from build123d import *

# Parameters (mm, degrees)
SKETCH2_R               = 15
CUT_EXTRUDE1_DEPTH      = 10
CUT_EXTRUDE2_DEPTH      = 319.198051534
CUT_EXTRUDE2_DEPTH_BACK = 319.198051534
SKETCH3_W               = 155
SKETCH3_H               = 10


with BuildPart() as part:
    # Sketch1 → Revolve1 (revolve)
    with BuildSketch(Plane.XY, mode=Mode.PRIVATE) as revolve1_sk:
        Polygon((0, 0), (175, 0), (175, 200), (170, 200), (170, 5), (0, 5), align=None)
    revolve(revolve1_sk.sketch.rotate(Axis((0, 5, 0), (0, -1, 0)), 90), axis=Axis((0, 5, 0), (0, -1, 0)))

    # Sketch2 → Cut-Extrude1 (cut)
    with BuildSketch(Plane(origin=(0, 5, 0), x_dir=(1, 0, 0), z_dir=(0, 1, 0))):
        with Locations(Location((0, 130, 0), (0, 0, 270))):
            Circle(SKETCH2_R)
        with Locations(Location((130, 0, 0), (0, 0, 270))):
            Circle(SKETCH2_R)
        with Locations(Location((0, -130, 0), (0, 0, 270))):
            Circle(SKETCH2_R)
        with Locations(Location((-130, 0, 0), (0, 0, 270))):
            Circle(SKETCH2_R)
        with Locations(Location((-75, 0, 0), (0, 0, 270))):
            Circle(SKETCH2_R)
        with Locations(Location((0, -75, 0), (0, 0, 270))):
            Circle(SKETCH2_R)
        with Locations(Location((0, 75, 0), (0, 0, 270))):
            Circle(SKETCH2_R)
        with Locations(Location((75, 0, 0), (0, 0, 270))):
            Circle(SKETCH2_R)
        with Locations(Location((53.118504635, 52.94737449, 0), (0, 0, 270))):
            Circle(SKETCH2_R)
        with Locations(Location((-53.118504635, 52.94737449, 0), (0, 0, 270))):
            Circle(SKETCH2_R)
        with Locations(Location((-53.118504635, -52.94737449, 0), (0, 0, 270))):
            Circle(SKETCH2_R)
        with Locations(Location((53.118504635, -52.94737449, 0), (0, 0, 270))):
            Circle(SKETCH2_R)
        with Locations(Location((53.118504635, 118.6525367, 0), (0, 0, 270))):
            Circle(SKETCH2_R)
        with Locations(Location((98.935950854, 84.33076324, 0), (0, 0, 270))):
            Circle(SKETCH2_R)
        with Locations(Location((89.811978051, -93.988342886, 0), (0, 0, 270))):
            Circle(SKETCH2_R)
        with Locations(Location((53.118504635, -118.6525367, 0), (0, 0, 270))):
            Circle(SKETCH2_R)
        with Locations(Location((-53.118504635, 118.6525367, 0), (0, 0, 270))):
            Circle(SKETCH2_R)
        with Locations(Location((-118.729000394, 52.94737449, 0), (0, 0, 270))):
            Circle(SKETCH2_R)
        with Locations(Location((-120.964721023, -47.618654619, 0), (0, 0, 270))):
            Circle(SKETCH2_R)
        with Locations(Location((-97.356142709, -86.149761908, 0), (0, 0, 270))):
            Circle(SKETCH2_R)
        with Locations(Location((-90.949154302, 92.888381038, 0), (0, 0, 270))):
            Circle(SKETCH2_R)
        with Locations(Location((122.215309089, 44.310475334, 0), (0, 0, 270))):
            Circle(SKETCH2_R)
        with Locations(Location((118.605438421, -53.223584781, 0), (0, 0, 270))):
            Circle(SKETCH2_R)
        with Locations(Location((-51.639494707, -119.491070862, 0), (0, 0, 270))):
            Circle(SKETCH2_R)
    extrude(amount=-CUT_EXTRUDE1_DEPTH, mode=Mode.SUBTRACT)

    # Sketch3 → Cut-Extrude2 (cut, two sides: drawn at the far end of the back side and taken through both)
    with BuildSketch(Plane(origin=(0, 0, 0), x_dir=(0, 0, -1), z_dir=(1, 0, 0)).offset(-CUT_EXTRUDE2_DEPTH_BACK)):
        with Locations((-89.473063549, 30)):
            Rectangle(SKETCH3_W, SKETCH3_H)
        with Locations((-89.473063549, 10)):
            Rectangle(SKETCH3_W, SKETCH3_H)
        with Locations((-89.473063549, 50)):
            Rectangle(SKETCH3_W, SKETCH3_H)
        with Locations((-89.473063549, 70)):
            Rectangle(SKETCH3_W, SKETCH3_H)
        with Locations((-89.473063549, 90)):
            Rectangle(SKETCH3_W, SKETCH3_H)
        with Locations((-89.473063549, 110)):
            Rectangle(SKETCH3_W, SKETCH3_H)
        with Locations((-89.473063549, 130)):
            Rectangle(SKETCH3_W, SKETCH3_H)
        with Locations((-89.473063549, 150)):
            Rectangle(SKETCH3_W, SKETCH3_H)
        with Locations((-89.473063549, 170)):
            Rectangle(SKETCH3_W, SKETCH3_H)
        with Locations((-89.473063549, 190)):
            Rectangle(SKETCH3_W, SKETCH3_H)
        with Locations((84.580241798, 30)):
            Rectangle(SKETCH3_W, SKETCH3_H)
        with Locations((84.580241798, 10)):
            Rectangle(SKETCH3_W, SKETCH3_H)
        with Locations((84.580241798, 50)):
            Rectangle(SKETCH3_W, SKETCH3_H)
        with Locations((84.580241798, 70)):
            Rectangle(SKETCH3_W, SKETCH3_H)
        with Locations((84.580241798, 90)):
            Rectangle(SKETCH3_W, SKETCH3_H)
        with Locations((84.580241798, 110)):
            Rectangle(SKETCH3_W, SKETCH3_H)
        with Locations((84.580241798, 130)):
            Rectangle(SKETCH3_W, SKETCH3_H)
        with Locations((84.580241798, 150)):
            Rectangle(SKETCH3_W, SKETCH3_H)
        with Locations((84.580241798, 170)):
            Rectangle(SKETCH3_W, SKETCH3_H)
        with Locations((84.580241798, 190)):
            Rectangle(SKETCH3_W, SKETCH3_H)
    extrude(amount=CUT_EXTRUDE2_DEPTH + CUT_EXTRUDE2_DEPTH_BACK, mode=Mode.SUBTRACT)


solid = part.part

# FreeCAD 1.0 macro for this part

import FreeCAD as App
import Part
import Sketcher

V = App.Vector

doc = App.newDocument("Part")
body = doc.addObject("PartDesign::Body", "Body")

sketch1 = doc.addObject("Sketcher::SketchObject", "Sketch")
body.addObject(sketch1)
sketch1.AttachmentSupport = (doc.XY_Plane, [""])
sketch1.MapMode = "FlatFace"
sketch1.addGeometry([
    Part.LineSegment(V(0, 0, 0), V(175, 0, 0)),
    Part.LineSegment(V(175, 0, 0), V(175, 200, 0)),
    Part.LineSegment(V(175, 200, 0), V(170, 200, 0)),
    Part.LineSegment(V(170, 200, 0), V(170, 5, 0)),
    Part.LineSegment(V(170, 5, 0), V(0, 5, 0)),
    Part.LineSegment(V(0, 5, 0), V(0, 0, 0)),
], False)
sketch1.addConstraint([
    Sketcher.Constraint("Coincident", 0, 2, 1, 1),
    Sketcher.Constraint("Coincident", 1, 2, 2, 1),
    Sketcher.Constraint("Coincident", 2, 2, 3, 1),
    Sketcher.Constraint("Coincident", 3, 2, 4, 1),
    Sketcher.Constraint("Coincident", 4, 2, 5, 1),
    Sketcher.Constraint("Coincident", 5, 2, 0, 1),
    Sketcher.Constraint("Horizontal", 0),
    Sketcher.Constraint("Vertical", 1),
    Sketcher.Constraint("Horizontal", 2),
    Sketcher.Constraint("Vertical", 3),
    Sketcher.Constraint("Horizontal", 4),
    Sketcher.Constraint("Vertical", 5),
    Sketcher.Constraint("Coincident", 5, 2, -1, 1),
    Sketcher.Constraint("Equal", 2, 5),
    Sketcher.Constraint("DistanceX", 0, 1, 0, 2, 175.0),
    Sketcher.Constraint("DistanceX", 2, 2, 2, 1, 5.0),
    Sketcher.Constraint("DistanceY", 1, 1, 1, 2, 200.0),
])
revolution = doc.addObject("PartDesign::Revolution", "Revolution")
body.addObject(revolution)
revolution.Profile = sketch1
revolution.ReferenceAxis = (sketch1, ["V_Axis"])
revolution.Angle = 360

sketch2 = doc.addObject("Sketcher::SketchObject", "Sketch001")
body.addObject(sketch2)
sketch2.AttachmentSupport = (doc.XZ_Plane, [""])
sketch2.MapMode = "FlatFace"
sketch2.AttachmentOffset = App.Placement(V(0, 0, -5), App.Rotation())
sketch2.addGeometry([
    Part.Circle(V(0, -130, 0), V(0, 0, 1), 15),
    Part.Circle(V(130, 0, 0), V(0, 0, 1), 15),
    Part.Circle(V(0, 130, 0), V(0, 0, 1), 15),
    Part.Circle(V(-130, 0, 0), V(0, 0, 1), 15),
    Part.Circle(V(-75, 0, 0), V(0, 0, 1), 15),
    Part.Circle(V(0, 75, 0), V(0, 0, 1), 15),
    Part.Circle(V(0, -75, 0), V(0, 0, 1), 15),
    Part.Circle(V(75, 0, 0), V(0, 0, 1), 15),
    Part.Circle(V(53.118505, -52.947374, 0), V(0, 0, 1), 15),
    Part.Circle(V(-53.118505, -52.947374, 0), V(0, 0, 1), 15),
    Part.Circle(V(-53.118505, 52.947374, 0), V(0, 0, 1), 15),
    Part.Circle(V(53.118505, 52.947374, 0), V(0, 0, 1), 15),
    Part.Circle(V(53.118505, -118.652537, 0), V(0, 0, 1), 15),
    Part.Circle(V(98.935951, -84.330763, 0), V(0, 0, 1), 15),
    Part.Circle(V(89.811978, 93.988343, 0), V(0, 0, 1), 15),
    Part.Circle(V(53.118505, 118.652537, 0), V(0, 0, 1), 15),
    Part.Circle(V(-53.118505, -118.652537, 0), V(0, 0, 1), 15),
    Part.Circle(V(-118.729, -52.947374, 0), V(0, 0, 1), 15),
    Part.Circle(V(-120.964721, 47.618655, 0), V(0, 0, 1), 15),
    Part.Circle(V(-97.356143, 86.149762, 0), V(0, 0, 1), 15),
    Part.Circle(V(-90.949154, -92.888381, 0), V(0, 0, 1), 15),
    Part.Circle(V(122.215309, -44.310475, 0), V(0, 0, 1), 15),
    Part.Circle(V(118.605438, 53.223585, 0), V(0, 0, 1), 15),
    Part.Circle(V(-51.639495, 119.491071, 0), V(0, 0, 1), 15),
], False)
sketch2.addConstraint([
    Sketcher.Constraint("Equal", 0, 1),
    Sketcher.Constraint("Equal", 1, 2),
    Sketcher.Constraint("Equal", 2, 3),
    Sketcher.Constraint("Equal", 3, 4),
    Sketcher.Constraint("Equal", 4, 5),
    Sketcher.Constraint("Equal", 5, 6),
    Sketcher.Constraint("Equal", 6, 7),
    Sketcher.Constraint("Equal", 7, 8),
    Sketcher.Constraint("Equal", 8, 9),
    Sketcher.Constraint("Equal", 9, 10),
    Sketcher.Constraint("Equal", 10, 11),
    Sketcher.Constraint("Equal", 11, 12),
    Sketcher.Constraint("Equal", 12, 13),
    Sketcher.Constraint("Equal", 13, 14),
    Sketcher.Constraint("Equal", 14, 15),
    Sketcher.Constraint("Equal", 15, 16),
    Sketcher.Constraint("Equal", 16, 17),
    Sketcher.Constraint("Equal", 17, 18),
    Sketcher.Constraint("Equal", 18, 19),
    Sketcher.Constraint("Equal", 19, 20),
    Sketcher.Constraint("Equal", 20, 21),
    Sketcher.Constraint("Equal", 21, 22),
    Sketcher.Constraint("Equal", 22, 23),
    Sketcher.Constraint("Symmetric", 0, 3, 2, 3, -1, 1),
    Sketcher.Constraint("Symmetric", 1, 3, 3, 3, -1, 1),
    Sketcher.Constraint("Symmetric", 5, 3, 6, 3, -1, 1),
    Sketcher.Constraint("Symmetric", 4, 3, 7, 3, -1, 1),
    Sketcher.Constraint("Symmetric", 8, 3, 10, 3, -1, 1),
    Sketcher.Constraint("Symmetric", 9, 3, 11, 3, -1, 1),
    Sketcher.Constraint("Symmetric", 15, 3, 16, 3, -1, 1),
    Sketcher.Constraint("Symmetric", 8, 3, 9, 3, -2),
    Sketcher.Constraint("Symmetric", 12, 3, 16, 3, -2),
    Sketcher.Constraint("PointOnObject", 0, 3, -2),
    Sketcher.Constraint("PointOnObject", 1, 3, -1),
    Sketcher.Constraint("PointOnObject", 4, 3, -1),
    Sketcher.Constraint("PointOnObject", 5, 3, -2),
    Sketcher.Constraint("Horizontal", 9, 3, 17, 3),
    Sketcher.Constraint("Vertical", 11, 3, 12, 3),
    Sketcher.Constraint("Diameter", 0, 30.0),
    Sketcher.Constraint("DistanceY", 0, 3, -1, 1, 130.0),
    Sketcher.Constraint("DistanceX", -1, 1, 1, 3, 130.0),
    Sketcher.Constraint("DistanceX", 4, 3, -1, 1, 75.0),
    Sketcher.Constraint("DistanceY", -1, 1, 5, 3, 75.0),
    Sketcher.Constraint("DistanceX", 17, 3, -1, 1, 118.729),
    Sketcher.Constraint("DistanceY", 8, 3, 21, 3, 8.636899),
    Sketcher.Constraint("DistanceX", -1, 1, 13, 3, 98.935951),
    Sketcher.Constraint("DistanceX", -1, 1, 14, 3, 89.811978),
    Sketcher.Constraint("DistanceX", 18, 3, -1, 1, 120.964721),
    Sketcher.Constraint("DistanceY", -1, 1, 19, 3, 86.149762),
    Sketcher.Constraint("DistanceY", 20, 3, -1, 1, 92.888381),
    Sketcher.Constraint("DistanceX", -1, 1, 21, 3, 122.215309),
    Sketcher.Constraint("DistanceX", -1, 1, 22, 3, 118.605438),
    Sketcher.Constraint("DistanceY", -1, 1, 23, 3, 119.491071),
    Sketcher.Constraint("DistanceX", 9, 3, 8, 3, 106.237009),
    Sketcher.Constraint("DistanceY", 9, 3, 10, 3, 105.894749),
    Sketcher.Constraint("DistanceY", 13, 3, 8, 3, 31.383389),
    Sketcher.Constraint("DistanceY", 11, 3, 14, 3, 41.040968),
    Sketcher.Constraint("DistanceY", 18, 3, 10, 3, 5.32872),
    Sketcher.Constraint("DistanceX", 18, 3, 19, 3, 23.608578),
    Sketcher.Constraint("DistanceX", 20, 3, 16, 3, 37.83065),
    Sketcher.Constraint("DistanceY", 12, 3, 21, 3, 74.342061),
    Sketcher.Constraint("DistanceY", 22, 3, 14, 3, 40.764758),
    Sketcher.Constraint("DistanceX", 19, 3, 23, 3, 45.716648),
])
pocket1 = doc.addObject("PartDesign::Pocket", "Pocket")
body.addObject(pocket1)
pocket1.Profile = sketch2
pocket1.Length = 10
pocket1.Reversed = True

sketch3 = doc.addObject("Sketcher::SketchObject", "Sketch002")
body.addObject(sketch3)
sketch3.AttachmentSupport = (doc.YZ_Plane, [""])
sketch3.MapMode = "FlatFace"
sketch3.addGeometry([
    Part.LineSegment(V(35, 166.973064, 0), V(25, 166.973064, 0)),
    Part.LineSegment(V(25, 166.973064, 0), V(25, 11.973064, 0)),
    Part.LineSegment(V(25, 11.973064, 0), V(35, 11.973064, 0)),
    Part.LineSegment(V(35, 11.973064, 0), V(35, 166.973064, 0)),
    Part.LineSegment(V(15, 166.973064, 0), V(5, 166.973064, 0)),
    Part.LineSegment(V(5, 166.973064, 0), V(5, 11.973064, 0)),
    Part.LineSegment(V(5, 11.973064, 0), V(15, 11.973064, 0)),
    Part.LineSegment(V(15, 11.973064, 0), V(15, 166.973064, 0)),
    Part.LineSegment(V(55, 166.973064, 0), V(45, 166.973064, 0)),
    Part.LineSegment(V(45, 166.973064, 0), V(45, 11.973064, 0)),
    Part.LineSegment(V(45, 11.973064, 0), V(55, 11.973064, 0)),
    Part.LineSegment(V(55, 11.973064, 0), V(55, 166.973064, 0)),
    Part.LineSegment(V(75, 166.973064, 0), V(65, 166.973064, 0)),
    Part.LineSegment(V(65, 166.973064, 0), V(65, 11.973064, 0)),
    Part.LineSegment(V(65, 11.973064, 0), V(75, 11.973064, 0)),
    Part.LineSegment(V(75, 11.973064, 0), V(75, 166.973064, 0)),
    Part.LineSegment(V(95, 166.973064, 0), V(85, 166.973064, 0)),
    Part.LineSegment(V(85, 166.973064, 0), V(85, 11.973064, 0)),
    Part.LineSegment(V(85, 11.973064, 0), V(95, 11.973064, 0)),
    Part.LineSegment(V(95, 11.973064, 0), V(95, 166.973064, 0)),
    Part.LineSegment(V(115, 166.973064, 0), V(105, 166.973064, 0)),
    Part.LineSegment(V(105, 166.973064, 0), V(105, 11.973064, 0)),
    Part.LineSegment(V(105, 11.973064, 0), V(115, 11.973064, 0)),
    Part.LineSegment(V(115, 11.973064, 0), V(115, 166.973064, 0)),
    Part.LineSegment(V(135, 166.973064, 0), V(125, 166.973064, 0)),
    Part.LineSegment(V(125, 166.973064, 0), V(125, 11.973064, 0)),
    Part.LineSegment(V(125, 11.973064, 0), V(135, 11.973064, 0)),
    Part.LineSegment(V(135, 11.973064, 0), V(135, 166.973064, 0)),
    Part.LineSegment(V(155, 166.973064, 0), V(145, 166.973064, 0)),
    Part.LineSegment(V(145, 166.973064, 0), V(145, 11.973064, 0)),
    Part.LineSegment(V(145, 11.973064, 0), V(155, 11.973064, 0)),
    Part.LineSegment(V(155, 11.973064, 0), V(155, 166.973064, 0)),
    Part.LineSegment(V(175, 166.973064, 0), V(165, 166.973064, 0)),
    Part.LineSegment(V(165, 166.973064, 0), V(165, 11.973064, 0)),
    Part.LineSegment(V(165, 11.973064, 0), V(175, 11.973064, 0)),
    Part.LineSegment(V(175, 11.973064, 0), V(175, 166.973064, 0)),
    Part.LineSegment(V(195, 166.973064, 0), V(185, 166.973064, 0)),
    Part.LineSegment(V(185, 166.973064, 0), V(185, 11.973064, 0)),
    Part.LineSegment(V(185, 11.973064, 0), V(195, 11.973064, 0)),
    Part.LineSegment(V(195, 11.973064, 0), V(195, 166.973064, 0)),
    Part.LineSegment(V(35, -7.080242, 0), V(25, -7.080242, 0)),
    Part.LineSegment(V(25, -7.080242, 0), V(25, -162.080242, 0)),
    Part.LineSegment(V(25, -162.080242, 0), V(35, -162.080242, 0)),
    Part.LineSegment(V(35, -162.080242, 0), V(35, -7.080242, 0)),
    Part.LineSegment(V(15, -7.080242, 0), V(5, -7.080242, 0)),
    Part.LineSegment(V(5, -7.080242, 0), V(5, -162.080242, 0)),
    Part.LineSegment(V(5, -162.080242, 0), V(15, -162.080242, 0)),
    Part.LineSegment(V(15, -162.080242, 0), V(15, -7.080242, 0)),
    Part.LineSegment(V(55, -7.080242, 0), V(45, -7.080242, 0)),
    Part.LineSegment(V(45, -7.080242, 0), V(45, -162.080242, 0)),
    Part.LineSegment(V(45, -162.080242, 0), V(55, -162.080242, 0)),
    Part.LineSegment(V(55, -162.080242, 0), V(55, -7.080242, 0)),
    Part.LineSegment(V(75, -7.080242, 0), V(65, -7.080242, 0)),
    Part.LineSegment(V(65, -7.080242, 0), V(65, -162.080242, 0)),
    Part.LineSegment(V(65, -162.080242, 0), V(75, -162.080242, 0)),
    Part.LineSegment(V(75, -162.080242, 0), V(75, -7.080242, 0)),
    Part.LineSegment(V(95, -7.080242, 0), V(85, -7.080242, 0)),
    Part.LineSegment(V(85, -7.080242, 0), V(85, -162.080242, 0)),
    Part.LineSegment(V(85, -162.080242, 0), V(95, -162.080242, 0)),
    Part.LineSegment(V(95, -162.080242, 0), V(95, -7.080242, 0)),
    Part.LineSegment(V(115, -7.080242, 0), V(105, -7.080242, 0)),
    Part.LineSegment(V(105, -7.080242, 0), V(105, -162.080242, 0)),
    Part.LineSegment(V(105, -162.080242, 0), V(115, -162.080242, 0)),
    Part.LineSegment(V(115, -162.080242, 0), V(115, -7.080242, 0)),
    Part.LineSegment(V(135, -7.080242, 0), V(125, -7.080242, 0)),
    Part.LineSegment(V(125, -7.080242, 0), V(125, -162.080242, 0)),
    Part.LineSegment(V(125, -162.080242, 0), V(135, -162.080242, 0)),
    Part.LineSegment(V(135, -162.080242, 0), V(135, -7.080242, 0)),
    Part.LineSegment(V(155, -7.080242, 0), V(145, -7.080242, 0)),
    Part.LineSegment(V(145, -7.080242, 0), V(145, -162.080242, 0)),
    Part.LineSegment(V(145, -162.080242, 0), V(155, -162.080242, 0)),
    Part.LineSegment(V(155, -162.080242, 0), V(155, -7.080242, 0)),
    Part.LineSegment(V(175, -7.080242, 0), V(165, -7.080242, 0)),
    Part.LineSegment(V(165, -7.080242, 0), V(165, -162.080242, 0)),
    Part.LineSegment(V(165, -162.080242, 0), V(175, -162.080242, 0)),
    Part.LineSegment(V(175, -162.080242, 0), V(175, -7.080242, 0)),
    Part.LineSegment(V(195, -7.080242, 0), V(185, -7.080242, 0)),
    Part.LineSegment(V(185, -7.080242, 0), V(185, -162.080242, 0)),
    Part.LineSegment(V(185, -162.080242, 0), V(195, -162.080242, 0)),
    Part.LineSegment(V(195, -162.080242, 0), V(195, -7.080242, 0)),
], False)
sketch3.addConstraint([
    Sketcher.Constraint("Coincident", 0, 2, 1, 1),
    Sketcher.Constraint("Coincident", 1, 2, 2, 1),
    Sketcher.Constraint("Coincident", 2, 2, 3, 1),
    Sketcher.Constraint("Coincident", 3, 2, 0, 1),
    Sketcher.Constraint("Coincident", 4, 2, 5, 1),
    Sketcher.Constraint("Coincident", 5, 2, 6, 1),
    Sketcher.Constraint("Coincident", 6, 2, 7, 1),
    Sketcher.Constraint("Coincident", 7, 2, 4, 1),
    Sketcher.Constraint("Coincident", 8, 2, 9, 1),
    Sketcher.Constraint("Coincident", 9, 2, 10, 1),
    Sketcher.Constraint("Coincident", 10, 2, 11, 1),
    Sketcher.Constraint("Coincident", 11, 2, 8, 1),
    Sketcher.Constraint("Coincident", 12, 2, 13, 1),
    Sketcher.Constraint("Coincident", 13, 2, 14, 1),
    Sketcher.Constraint("Coincident", 14, 2, 15, 1),
    Sketcher.Constraint("Coincident", 15, 2, 12, 1),
    Sketcher.Constraint("Coincident", 16, 2, 17, 1),
    Sketcher.Constraint("Coincident", 17, 2, 18, 1),
    Sketcher.Constraint("Coincident", 18, 2, 19, 1),
    Sketcher.Constraint("Coincident", 19, 2, 16, 1),
    Sketcher.Constraint("Coincident", 20, 2, 21, 1),
    Sketcher.Constraint("Coincident", 21, 2, 22, 1),
    Sketcher.Constraint("Coincident", 22, 2, 23, 1),
    Sketcher.Constraint("Coincident", 23, 2, 20, 1),
    Sketcher.Constraint("Coincident", 24, 2, 25, 1),
    Sketcher.Constraint("Coincident", 25, 2, 26, 1),
    Sketcher.Constraint("Coincident", 26, 2, 27, 1),
    Sketcher.Constraint("Coincident", 27, 2, 24, 1),
    Sketcher.Constraint("Coincident", 28, 2, 29, 1),
    Sketcher.Constraint("Coincident", 29, 2, 30, 1),
    Sketcher.Constraint("Coincident", 30, 2, 31, 1),
    Sketcher.Constraint("Coincident", 31, 2, 28, 1),
    Sketcher.Constraint("Coincident", 32, 2, 33, 1),
    Sketcher.Constraint("Coincident", 33, 2, 34, 1),
    Sketcher.Constraint("Coincident", 34, 2, 35, 1),
    Sketcher.Constraint("Coincident", 35, 2, 32, 1),
    Sketcher.Constraint("Coincident", 36, 2, 37, 1),
    Sketcher.Constraint("Coincident", 37, 2, 38, 1),
    Sketcher.Constraint("Coincident", 38, 2, 39, 1),
    Sketcher.Constraint("Coincident", 39, 2, 36, 1),
    Sketcher.Constraint("Coincident", 40, 2, 41, 1),
    Sketcher.Constraint("Coincident", 41, 2, 42, 1),
    Sketcher.Constraint("Coincident", 42, 2, 43, 1),
    Sketcher.Constraint("Coincident", 43, 2, 40, 1),
    Sketcher.Constraint("Coincident", 44, 2, 45, 1),
    Sketcher.Constraint("Coincident", 45, 2, 46, 1),
    Sketcher.Constraint("Coincident", 46, 2, 47, 1),
    Sketcher.Constraint("Coincident", 47, 2, 44, 1),
    Sketcher.Constraint("Coincident", 48, 2, 49, 1),
    Sketcher.Constraint("Coincident", 49, 2, 50, 1),
    Sketcher.Constraint("Coincident", 50, 2, 51, 1),
    Sketcher.Constraint("Coincident", 51, 2, 48, 1),
    Sketcher.Constraint("Coincident", 52, 2, 53, 1),
    Sketcher.Constraint("Coincident", 53, 2, 54, 1),
    Sketcher.Constraint("Coincident", 54, 2, 55, 1),
    Sketcher.Constraint("Coincident", 55, 2, 52, 1),
    Sketcher.Constraint("Coincident", 56, 2, 57, 1),
    Sketcher.Constraint("Coincident", 57, 2, 58, 1),
    Sketcher.Constraint("Coincident", 58, 2, 59, 1),
    Sketcher.Constraint("Coincident", 59, 2, 56, 1),
    Sketcher.Constraint("Coincident", 60, 2, 61, 1),
    Sketcher.Constraint("Coincident", 61, 2, 62, 1),
    Sketcher.Constraint("Coincident", 62, 2, 63, 1),
    Sketcher.Constraint("Coincident", 63, 2, 60, 1),
    Sketcher.Constraint("Coincident", 64, 2, 65, 1),
    Sketcher.Constraint("Coincident", 65, 2, 66, 1),
    Sketcher.Constraint("Coincident", 66, 2, 67, 1),
    Sketcher.Constraint("Coincident", 67, 2, 64, 1),
    Sketcher.Constraint("Coincident", 68, 2, 69, 1),
    Sketcher.Constraint("Coincident", 69, 2, 70, 1),
    Sketcher.Constraint("Coincident", 70, 2, 71, 1),
    Sketcher.Constraint("Coincident", 71, 2, 68, 1),
    Sketcher.Constraint("Coincident", 72, 2, 73, 1),
    Sketcher.Constraint("Coincident", 73, 2, 74, 1),
    Sketcher.Constraint("Coincident", 74, 2, 75, 1),
    Sketcher.Constraint("Coincident", 75, 2, 72, 1),
    Sketcher.Constraint("Coincident", 76, 2, 77, 1),
    Sketcher.Constraint("Coincident", 77, 2, 78, 1),
    Sketcher.Constraint("Coincident", 78, 2, 79, 1),
    Sketcher.Constraint("Coincident", 79, 2, 76, 1),
    Sketcher.Constraint("Horizontal", 0),
    Sketcher.Constraint("Vertical", 1),
    Sketcher.Constraint("Horizontal", 2),
    Sketcher.Constraint("Vertical", 3),
    Sketcher.Constraint("Horizontal", 4),
    Sketcher.Constraint("Vertical", 5),
    Sketcher.Constraint("Horizontal", 6),
    Sketcher.Constraint("Vertical", 7),
    Sketcher.Constraint("Horizontal", 8),
    Sketcher.Constraint("Vertical", 9),
    Sketcher.Constraint("Horizontal", 10),
    Sketcher.Constraint("Vertical", 11),
    Sketcher.Constraint("Horizontal", 12),
    Sketcher.Constraint("Vertical", 13),
    Sketcher.Constraint("Horizontal", 14),
    Sketcher.Constraint("Vertical", 15),
    Sketcher.Constraint("Horizontal", 16),
    Sketcher.Constraint("Vertical", 17),
    Sketcher.Constraint("Horizontal", 18),
    Sketcher.Constraint("Vertical", 19),
    Sketcher.Constraint("Horizontal", 20),
    Sketcher.Constraint("Vertical", 21),
    Sketcher.Constraint("Horizontal", 22),
    Sketcher.Constraint("Vertical", 23),
    Sketcher.Constraint("Horizontal", 24),
    Sketcher.Constraint("Vertical", 25),
    Sketcher.Constraint("Horizontal", 26),
    Sketcher.Constraint("Vertical", 27),
    Sketcher.Constraint("Horizontal", 28),
    Sketcher.Constraint("Vertical", 29),
    Sketcher.Constraint("Horizontal", 30),
    Sketcher.Constraint("Vertical", 31),
    Sketcher.Constraint("Horizontal", 32),
    Sketcher.Constraint("Vertical", 33),
    Sketcher.Constraint("Horizontal", 34),
    Sketcher.Constraint("Vertical", 35),
    Sketcher.Constraint("Horizontal", 36),
    Sketcher.Constraint("Vertical", 37),
    Sketcher.Constraint("Horizontal", 38),
    Sketcher.Constraint("Vertical", 39),
    Sketcher.Constraint("Horizontal", 40),
    Sketcher.Constraint("Vertical", 41),
    Sketcher.Constraint("Horizontal", 42),
    Sketcher.Constraint("Vertical", 43),
    Sketcher.Constraint("Horizontal", 44),
    Sketcher.Constraint("Vertical", 45),
    Sketcher.Constraint("Horizontal", 46),
    Sketcher.Constraint("Vertical", 47),
    Sketcher.Constraint("Horizontal", 48),
    Sketcher.Constraint("Vertical", 49),
    Sketcher.Constraint("Horizontal", 50),
    Sketcher.Constraint("Vertical", 51),
    Sketcher.Constraint("Horizontal", 52),
    Sketcher.Constraint("Vertical", 53),
    Sketcher.Constraint("Horizontal", 54),
    Sketcher.Constraint("Vertical", 55),
    Sketcher.Constraint("Horizontal", 56),
    Sketcher.Constraint("Vertical", 57),
    Sketcher.Constraint("Horizontal", 58),
    Sketcher.Constraint("Vertical", 59),
    Sketcher.Constraint("Horizontal", 60),
    Sketcher.Constraint("Vertical", 61),
    Sketcher.Constraint("Horizontal", 62),
    Sketcher.Constraint("Vertical", 63),
    Sketcher.Constraint("Horizontal", 64),
    Sketcher.Constraint("Vertical", 65),
    Sketcher.Constraint("Horizontal", 66),
    Sketcher.Constraint("Vertical", 67),
    Sketcher.Constraint("Horizontal", 68),
    Sketcher.Constraint("Vertical", 69),
    Sketcher.Constraint("Horizontal", 70),
    Sketcher.Constraint("Vertical", 71),
    Sketcher.Constraint("Horizontal", 72),
    Sketcher.Constraint("Vertical", 73),
    Sketcher.Constraint("Horizontal", 74),
    Sketcher.Constraint("Vertical", 75),
    Sketcher.Constraint("Horizontal", 76),
    Sketcher.Constraint("Vertical", 77),
    Sketcher.Constraint("Horizontal", 78),
    Sketcher.Constraint("Vertical", 79),
    Sketcher.Constraint("Horizontal", 3, 2, 4, 2),
    Sketcher.Constraint("Horizontal", 2, 2, 5, 2),
    Sketcher.Constraint("Horizontal", 7, 2, 8, 2),
    Sketcher.Constraint("Horizontal", 6, 2, 9, 2),
    Sketcher.Constraint("Horizontal", 11, 2, 12, 2),
    Sketcher.Constraint("Horizontal", 10, 2, 13, 2),
    Sketcher.Constraint("Horizontal", 15, 2, 16, 2),
    Sketcher.Constraint("Horizontal", 14, 2, 17, 2),
    Sketcher.Constraint("Horizontal", 19, 2, 20, 2),
    Sketcher.Constraint("Horizontal", 18, 2, 21, 2),
    Sketcher.Constraint("Horizontal", 23, 2, 24, 2),
    Sketcher.Constraint("Horizontal", 22, 2, 25, 2),
    Sketcher.Constraint("Horizontal", 27, 2, 28, 2),
    Sketcher.Constraint("Horizontal", 26, 2, 29, 2),
    Sketcher.Constraint("Horizontal", 31, 2, 32, 2),
    Sketcher.Constraint("Horizontal", 30, 2, 33, 2),
    Sketcher.Constraint("Horizontal", 35, 2, 36, 2),
    Sketcher.Constraint("Horizontal", 34, 2, 37, 2),
    Sketcher.Constraint("Horizontal", 43, 2, 44, 2),
    Sketcher.Constraint("Horizontal", 42, 2, 45, 2),
    Sketcher.Constraint("Horizontal", 47, 2, 48, 2),
    Sketcher.Constraint("Horizontal", 46, 2, 49, 2),
    Sketcher.Constraint("Horizontal", 51, 2, 52, 2),
    Sketcher.Constraint("Horizontal", 50, 2, 53, 2),
    Sketcher.Constraint("Horizontal", 55, 2, 56, 2),
    Sketcher.Constraint("Horizontal", 54, 2, 57, 2),
    Sketcher.Constraint("Horizontal", 59, 2, 60, 2),
    Sketcher.Constraint("Horizontal", 58, 2, 61, 2),
    Sketcher.Constraint("Horizontal", 63, 2, 64, 2),
    Sketcher.Constraint("Horizontal", 62, 2, 65, 2),
    Sketcher.Constraint("Horizontal", 67, 2, 68, 2),
    Sketcher.Constraint("Horizontal", 66, 2, 69, 2),
    Sketcher.Constraint("Horizontal", 71, 2, 72, 2),
    Sketcher.Constraint("Horizontal", 70, 2, 73, 2),
    Sketcher.Constraint("Horizontal", 75, 2, 76, 2),
    Sketcher.Constraint("Horizontal", 74, 2, 77, 2),
    Sketcher.Constraint("Vertical", 1, 2, 40, 2),
    Sketcher.Constraint("Vertical", 3, 2, 42, 2),
    Sketcher.Constraint("Vertical", 5, 2, 44, 2),
    Sketcher.Constraint("Vertical", 7, 2, 46, 2),
    Sketcher.Constraint("Vertical", 9, 2, 48, 2),
    Sketcher.Constraint("Vertical", 11, 2, 50, 2),
    Sketcher.Constraint("Vertical", 13, 2, 52, 2),
    Sketcher.Constraint("Vertical", 15, 2, 54, 2),
    Sketcher.Constraint("Vertical", 17, 2, 56, 2),
    Sketcher.Constraint("Vertical", 19, 2, 58, 2),
    Sketcher.Constraint("Vertical", 21, 2, 60, 2),
    Sketcher.Constraint("Vertical", 23, 2, 62, 2),
    Sketcher.Constraint("Vertical", 25, 2, 64, 2),
    Sketcher.Constraint("Vertical", 27, 2, 66, 2),
    Sketcher.Constraint("Vertical", 29, 2, 68, 2),
    Sketcher.Constraint("Vertical", 31, 2, 70, 2),
    Sketcher.Constraint("Vertical", 33, 2, 72, 2),
    Sketcher.Constraint("Vertical", 35, 2, 74, 2),
    Sketcher.Constraint("Vertical", 37, 2, 76, 2),
    Sketcher.Constraint("Vertical", 39, 2, 78, 2),
    Sketcher.Constraint("Equal", 2, 4),
    Sketcher.Constraint("Equal", 6, 8),
    Sketcher.Constraint("Equal", 10, 12),
    Sketcher.Constraint("Equal", 14, 16),
    Sketcher.Constraint("Equal", 18, 20),
    Sketcher.Constraint("Equal", 22, 24),
    Sketcher.Constraint("Equal", 26, 28),
    Sketcher.Constraint("Equal", 30, 32),
    Sketcher.Constraint("Equal", 34, 36),
    Sketcher.Constraint("Equal", 39, 41),
    Sketcher.Constraint("DistanceX", 0, 2, 0, 1, 10.0),
    Sketcher.Constraint("DistanceY", 1, 2, 1, 1, 155.0),
    Sketcher.Constraint("DistanceX", -1, 1, 0, 2, 25.0),
    Sketcher.Constraint("DistanceX", -1, 1, 4, 2, 5.0),
    Sketcher.Constraint("DistanceX", -1, 1, 8, 2, 45.0),
    Sketcher.Constraint("DistanceX", -1, 1, 12, 2, 65.0),
    Sketcher.Constraint("DistanceX", -1, 1, 16, 2, 85.0),
    Sketcher.Constraint("DistanceX", -1, 1, 20, 2, 105.0),
    Sketcher.Constraint("DistanceX", -1, 1, 24, 2, 125.0),
    Sketcher.Constraint("DistanceX", -1, 1, 28, 2, 145.0),
    Sketcher.Constraint("DistanceX", -1, 1, 32, 2, 165.0),
    Sketcher.Constraint("DistanceX", -1, 1, 36, 2, 185.0),
    Sketcher.Constraint("DistanceY", 40, 2, -1, 1, 7.080242),
    Sketcher.Constraint("DistanceY", -1, 1, 0, 2, 166.973064),
])
pocket2 = doc.addObject("PartDesign::Pocket", "Pocket001")
body.addObject(pocket2)
pocket2.Profile = sketch3
pocket2.Type = "ThroughAll"
pocket2.Midplane = True

doc.recompute()
